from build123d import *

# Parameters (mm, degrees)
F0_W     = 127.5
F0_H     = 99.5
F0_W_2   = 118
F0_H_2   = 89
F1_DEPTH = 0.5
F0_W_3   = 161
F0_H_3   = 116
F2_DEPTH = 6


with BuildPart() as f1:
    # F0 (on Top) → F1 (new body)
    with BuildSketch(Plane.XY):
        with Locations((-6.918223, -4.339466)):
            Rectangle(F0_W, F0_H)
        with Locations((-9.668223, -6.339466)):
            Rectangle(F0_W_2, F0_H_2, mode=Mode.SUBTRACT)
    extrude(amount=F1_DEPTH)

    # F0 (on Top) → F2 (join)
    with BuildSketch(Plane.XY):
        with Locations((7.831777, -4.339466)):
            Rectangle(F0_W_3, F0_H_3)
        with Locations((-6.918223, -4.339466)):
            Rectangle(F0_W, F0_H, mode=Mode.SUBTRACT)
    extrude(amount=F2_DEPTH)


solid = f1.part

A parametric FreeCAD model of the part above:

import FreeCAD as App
import Part
import Sketcher

V = App.Vector

doc = App.newDocument("Part")
params = doc.addObject("Spreadsheet::Sheet", "Params")
for row, (alias, value) in enumerate([
    ("sketch1_width", "118 mm"),
    ("sketch1_height", "89 mm"),
    ("sketch1_width2", "127.5 mm"),
    ("sketch1_height2", "99.5 mm"),
    ("pad1_length", "0.5 mm"),
    ("sketch2_width", "161 mm"),
    ("sketch2_height", "116 mm"),
    ("sketch2_width2", "127.5 mm"),
    ("sketch2_height2", "99.5 mm"),
    ("pad2_length", "6 mm"),
], start=1):
    params.set(f"A{row}", alias)
    params.set(f"B{row}", "=" + value)
    params.setAlias(f"B{row}", alias)

body = doc.addObject("PartDesign::Body", "Body")

# Sketch on XY plane
sketch1 = doc.addObject("Sketcher::SketchObject", "Sketch")
body.addObject(sketch1)
sketch1.AttachmentSupport = (doc.XY_Plane, [""])
sketch1.MapMode = "FlatFace"
sketch1.addGeometry(Part.LineSegment(V(-70.668223, 45.410534, 0), V(-70.668223, -54.089466, 0)), False)
sketch1.addGeometry(Part.LineSegment(V(-70.668223, -54.089466, 0), V(56.831777, -54.089466, 0)), False)
sketch1.addGeometry(Part.LineSegment(V(56.831777, -54.089466, 0), V(56.831777, 45.410534, 0)), False)
sketch1.addGeometry(Part.LineSegment(V(56.831777, 45.410534, 0), V(-70.668223, 45.410534, 0)), False)
sketch1.addGeometry(Part.LineSegment(V(49.331777, -50.839466, 0), V(-68.668223, -50.839466, 0)), False)
sketch1.addGeometry(Part.LineSegment(V(-68.668223, -50.839466, 0), V(-68.668223, 38.160534, 0)), False)
sketch1.addGeometry(Part.LineSegment(V(-68.668223, 38.160534, 0), V(49.331777, 38.160534, 0)), False)
sketch1.addGeometry(Part.LineSegment(V(49.331777, 38.160534, 0), V(49.331777, -50.839466, 0)), False)
sketch1.addConstraint(Sketcher.Constraint("Coincident", 0, 2, 1, 1))
sketch1.addConstraint(Sketcher.Constraint("Coincident", 1, 2, 2, 1))
sketch1.addConstraint(Sketcher.Constraint("Coincident", 2, 2, 3, 1))
sketch1.addConstraint(Sketcher.Constraint("Coincident", 3, 2, 0, 1))
sketch1.addConstraint(Sketcher.Constraint("Coincident", 4, 2, 5, 1))
sketch1.addConstraint(Sketcher.Constraint("Coincident", 5, 2, 6, 1))
sketch1.addConstraint(Sketcher.Constraint("Coincident", 6, 2, 7, 1))
sketch1.addConstraint(Sketcher.Constraint("Coincident", 7, 2, 4, 1))
sketch1.addConstraint(Sketcher.Constraint("Vertical", 0))
sketch1.addConstraint(Sketcher.Constraint("Horizontal", 1))
sketch1.addConstraint(Sketcher.Constraint("Vertical", 2))
sketch1.addConstraint(Sketcher.Constraint("Horizontal", 3))
sketch1.addConstraint(Sketcher.Constraint("Horizontal", 4))
sketch1.addConstraint(Sketcher.Constraint("Vertical", 5))
sketch1.addConstraint(Sketcher.Constraint("Horizontal", 6))
sketch1.addConstraint(Sketcher.Constraint("Vertical", 7))
sketch1.addConstraint(Sketcher.Constraint("DistanceX", 4, 2, 4, 1, 118.0))
sketch1.addConstraint(Sketcher.Constraint("DistanceY", 5, 1, 5, 2, 89.0))
sketch1.addConstraint(Sketcher.Constraint("DistanceX", 1, 1, 1, 2, 127.5))
sketch1.addConstraint(Sketcher.Constraint("DistanceY", 0, 2, 0, 1, 99.5))
sketch1.addConstraint(Sketcher.Constraint("DistanceX", 0, 2, 4, 2, 2.0))
sketch1.addConstraint(Sketcher.Constraint("DistanceY", 0, 2, 4, 2, 3.25))
sketch1.addConstraint(Sketcher.Constraint("DistanceX", 0, 2, -1, 1, 70.668223))
sketch1.addConstraint(Sketcher.Constraint("DistanceY", 0, 2, -1, 1, 54.089466))
sketch1.setExpression("Constraints[16]", "Params.sketch1_width")
sketch1.setExpression("Constraints[17]", "Params.sketch1_height")
sketch1.setExpression("Constraints[18]", "Params.sketch1_width2")
sketch1.setExpression("Constraints[19]", "Params.sketch1_height2")
pad1 = doc.addObject("PartDesign::Pad", "Pad")
body.addObject(pad1)
pad1.Profile = sketch1
pad1.setExpression("Length", "Params.pad1_length")

# Sketch on XY plane
sketch2 = doc.addObject("Sketcher::SketchObject", "Sketch001")
body.addObject(sketch2)
sketch2.AttachmentSupport = (doc.XY_Plane, [""])
sketch2.MapMode = "FlatFace"
sketch2.addGeometry(Part.LineSegment(V(-72.668223, 53.660534, 0), V(-72.668223, -62.339466, 0)), False)
sketch2.addGeometry(Part.LineSegment(V(-72.668223, -62.339466, 0), V(88.331777, -62.339466, 0)), False)
sketch2.addGeometry(Part.LineSegment(V(88.331777, -62.339466, 0), V(88.331777, 53.660534, 0)), False)
sketch2.addGeometry(Part.LineSegment(V(88.331777, 53.660534, 0), V(-72.668223, 53.660534, 0)), False)
sketch2.addGeometry(Part.LineSegment(V(56.831777, -54.089466, 0), V(-70.668223, -54.089466, 0)), False)
sketch2.addGeometry(Part.LineSegment(V(-70.668223, -54.089466, 0), V(-70.668223, 45.410534, 0)), False)
sketch2.addGeometry(Part.LineSegment(V(-70.668223, 45.410534, 0), V(56.831777, 45.410534, 0)), False)
sketch2.addGeometry(Part.LineSegment(V(56.831777, 45.410534, 0), V(56.831777, -54.089466, 0)), False)
sketch2.addConstraint(Sketcher.Constraint("Coincident", 0, 2, 1, 1))
sketch2.addConstraint(Sketcher.Constraint("Coincident", 1, 2, 2, 1))
sketch2.addConstraint(Sketcher.Constraint("Coincident", 2, 2, 3, 1))
sketch2.addConstraint(Sketcher.Constraint("Coincident", 3, 2, 0, 1))
sketch2.addConstraint(Sketcher.Constraint("Coincident", 4, 2, 5, 1))
sketch2.addConstraint(Sketcher.Constraint("Coincident", 5, 2, 6, 1))
sketch2.addConstraint(Sketcher.Constraint("Coincident", 6, 2, 7, 1))
sketch2.addConstraint(Sketcher.Constraint("Coincident", 7, 2, 4, 1))
sketch2.addConstraint(Sketcher.Constraint("Vertical", 0))
sketch2.addConstraint(Sketcher.Constraint("Horizontal", 1))
sketch2.addConstraint(Sketcher.Constraint("Vertical", 2))
sketch2.addConstraint(Sketcher.Constraint("Horizontal", 3))
sketch2.addConstraint(Sketcher.Constraint("Horizontal", 4))
sketch2.addConstraint(Sketcher.Constraint("Vertical", 5))
sketch2.addConstraint(Sketcher.Constraint("Horizontal", 6))
sketch2.addConstraint(Sketcher.Constraint("Vertical", 7))
sketch2.addConstraint(Sketcher.Constraint("DistanceX", 1, 1, 1, 2, 161.0))
sketch2.addConstraint(Sketcher.Constraint("DistanceY", 0, 2, 0, 1, 116.0))
sketch2.addConstraint(Sketcher.Constraint("DistanceX", 4, 2, 4, 1, 127.5))
sketch2.addConstraint(Sketcher.Constraint("DistanceY", 5, 1, 5, 2, 99.5))
sketch2.addConstraint(Sketcher.Constraint("DistanceX", 0, 2, 4, 2, 2.0))
sketch2.addConstraint(Sketcher.Constraint("DistanceY", 0, 2, 4, 2, 8.25))
sketch2.addConstraint(Sketcher.Constraint("DistanceX", 0, 2, -1, 1, 72.668223))
sketch2.addConstraint(Sketcher.Constraint("DistanceY", 0, 2, -1, 1, 62.339466))
sketch2.setExpression("Constraints[16]", "Params.sketch2_width")
sketch2.setExpression("Constraints[17]", "Params.sketch2_height")
sketch2.setExpression("Constraints[18]", "Params.sketch2_width2")
sketch2.setExpression("Constraints[19]", "Params.sketch2_height2")
pad2 = doc.addObject("PartDesign::Pad", "Pad001")
body.addObject(pad2)
pad2.Profile = sketch2
pad2.setExpression("Length", "Params.pad2_length")

doc.recompute()
